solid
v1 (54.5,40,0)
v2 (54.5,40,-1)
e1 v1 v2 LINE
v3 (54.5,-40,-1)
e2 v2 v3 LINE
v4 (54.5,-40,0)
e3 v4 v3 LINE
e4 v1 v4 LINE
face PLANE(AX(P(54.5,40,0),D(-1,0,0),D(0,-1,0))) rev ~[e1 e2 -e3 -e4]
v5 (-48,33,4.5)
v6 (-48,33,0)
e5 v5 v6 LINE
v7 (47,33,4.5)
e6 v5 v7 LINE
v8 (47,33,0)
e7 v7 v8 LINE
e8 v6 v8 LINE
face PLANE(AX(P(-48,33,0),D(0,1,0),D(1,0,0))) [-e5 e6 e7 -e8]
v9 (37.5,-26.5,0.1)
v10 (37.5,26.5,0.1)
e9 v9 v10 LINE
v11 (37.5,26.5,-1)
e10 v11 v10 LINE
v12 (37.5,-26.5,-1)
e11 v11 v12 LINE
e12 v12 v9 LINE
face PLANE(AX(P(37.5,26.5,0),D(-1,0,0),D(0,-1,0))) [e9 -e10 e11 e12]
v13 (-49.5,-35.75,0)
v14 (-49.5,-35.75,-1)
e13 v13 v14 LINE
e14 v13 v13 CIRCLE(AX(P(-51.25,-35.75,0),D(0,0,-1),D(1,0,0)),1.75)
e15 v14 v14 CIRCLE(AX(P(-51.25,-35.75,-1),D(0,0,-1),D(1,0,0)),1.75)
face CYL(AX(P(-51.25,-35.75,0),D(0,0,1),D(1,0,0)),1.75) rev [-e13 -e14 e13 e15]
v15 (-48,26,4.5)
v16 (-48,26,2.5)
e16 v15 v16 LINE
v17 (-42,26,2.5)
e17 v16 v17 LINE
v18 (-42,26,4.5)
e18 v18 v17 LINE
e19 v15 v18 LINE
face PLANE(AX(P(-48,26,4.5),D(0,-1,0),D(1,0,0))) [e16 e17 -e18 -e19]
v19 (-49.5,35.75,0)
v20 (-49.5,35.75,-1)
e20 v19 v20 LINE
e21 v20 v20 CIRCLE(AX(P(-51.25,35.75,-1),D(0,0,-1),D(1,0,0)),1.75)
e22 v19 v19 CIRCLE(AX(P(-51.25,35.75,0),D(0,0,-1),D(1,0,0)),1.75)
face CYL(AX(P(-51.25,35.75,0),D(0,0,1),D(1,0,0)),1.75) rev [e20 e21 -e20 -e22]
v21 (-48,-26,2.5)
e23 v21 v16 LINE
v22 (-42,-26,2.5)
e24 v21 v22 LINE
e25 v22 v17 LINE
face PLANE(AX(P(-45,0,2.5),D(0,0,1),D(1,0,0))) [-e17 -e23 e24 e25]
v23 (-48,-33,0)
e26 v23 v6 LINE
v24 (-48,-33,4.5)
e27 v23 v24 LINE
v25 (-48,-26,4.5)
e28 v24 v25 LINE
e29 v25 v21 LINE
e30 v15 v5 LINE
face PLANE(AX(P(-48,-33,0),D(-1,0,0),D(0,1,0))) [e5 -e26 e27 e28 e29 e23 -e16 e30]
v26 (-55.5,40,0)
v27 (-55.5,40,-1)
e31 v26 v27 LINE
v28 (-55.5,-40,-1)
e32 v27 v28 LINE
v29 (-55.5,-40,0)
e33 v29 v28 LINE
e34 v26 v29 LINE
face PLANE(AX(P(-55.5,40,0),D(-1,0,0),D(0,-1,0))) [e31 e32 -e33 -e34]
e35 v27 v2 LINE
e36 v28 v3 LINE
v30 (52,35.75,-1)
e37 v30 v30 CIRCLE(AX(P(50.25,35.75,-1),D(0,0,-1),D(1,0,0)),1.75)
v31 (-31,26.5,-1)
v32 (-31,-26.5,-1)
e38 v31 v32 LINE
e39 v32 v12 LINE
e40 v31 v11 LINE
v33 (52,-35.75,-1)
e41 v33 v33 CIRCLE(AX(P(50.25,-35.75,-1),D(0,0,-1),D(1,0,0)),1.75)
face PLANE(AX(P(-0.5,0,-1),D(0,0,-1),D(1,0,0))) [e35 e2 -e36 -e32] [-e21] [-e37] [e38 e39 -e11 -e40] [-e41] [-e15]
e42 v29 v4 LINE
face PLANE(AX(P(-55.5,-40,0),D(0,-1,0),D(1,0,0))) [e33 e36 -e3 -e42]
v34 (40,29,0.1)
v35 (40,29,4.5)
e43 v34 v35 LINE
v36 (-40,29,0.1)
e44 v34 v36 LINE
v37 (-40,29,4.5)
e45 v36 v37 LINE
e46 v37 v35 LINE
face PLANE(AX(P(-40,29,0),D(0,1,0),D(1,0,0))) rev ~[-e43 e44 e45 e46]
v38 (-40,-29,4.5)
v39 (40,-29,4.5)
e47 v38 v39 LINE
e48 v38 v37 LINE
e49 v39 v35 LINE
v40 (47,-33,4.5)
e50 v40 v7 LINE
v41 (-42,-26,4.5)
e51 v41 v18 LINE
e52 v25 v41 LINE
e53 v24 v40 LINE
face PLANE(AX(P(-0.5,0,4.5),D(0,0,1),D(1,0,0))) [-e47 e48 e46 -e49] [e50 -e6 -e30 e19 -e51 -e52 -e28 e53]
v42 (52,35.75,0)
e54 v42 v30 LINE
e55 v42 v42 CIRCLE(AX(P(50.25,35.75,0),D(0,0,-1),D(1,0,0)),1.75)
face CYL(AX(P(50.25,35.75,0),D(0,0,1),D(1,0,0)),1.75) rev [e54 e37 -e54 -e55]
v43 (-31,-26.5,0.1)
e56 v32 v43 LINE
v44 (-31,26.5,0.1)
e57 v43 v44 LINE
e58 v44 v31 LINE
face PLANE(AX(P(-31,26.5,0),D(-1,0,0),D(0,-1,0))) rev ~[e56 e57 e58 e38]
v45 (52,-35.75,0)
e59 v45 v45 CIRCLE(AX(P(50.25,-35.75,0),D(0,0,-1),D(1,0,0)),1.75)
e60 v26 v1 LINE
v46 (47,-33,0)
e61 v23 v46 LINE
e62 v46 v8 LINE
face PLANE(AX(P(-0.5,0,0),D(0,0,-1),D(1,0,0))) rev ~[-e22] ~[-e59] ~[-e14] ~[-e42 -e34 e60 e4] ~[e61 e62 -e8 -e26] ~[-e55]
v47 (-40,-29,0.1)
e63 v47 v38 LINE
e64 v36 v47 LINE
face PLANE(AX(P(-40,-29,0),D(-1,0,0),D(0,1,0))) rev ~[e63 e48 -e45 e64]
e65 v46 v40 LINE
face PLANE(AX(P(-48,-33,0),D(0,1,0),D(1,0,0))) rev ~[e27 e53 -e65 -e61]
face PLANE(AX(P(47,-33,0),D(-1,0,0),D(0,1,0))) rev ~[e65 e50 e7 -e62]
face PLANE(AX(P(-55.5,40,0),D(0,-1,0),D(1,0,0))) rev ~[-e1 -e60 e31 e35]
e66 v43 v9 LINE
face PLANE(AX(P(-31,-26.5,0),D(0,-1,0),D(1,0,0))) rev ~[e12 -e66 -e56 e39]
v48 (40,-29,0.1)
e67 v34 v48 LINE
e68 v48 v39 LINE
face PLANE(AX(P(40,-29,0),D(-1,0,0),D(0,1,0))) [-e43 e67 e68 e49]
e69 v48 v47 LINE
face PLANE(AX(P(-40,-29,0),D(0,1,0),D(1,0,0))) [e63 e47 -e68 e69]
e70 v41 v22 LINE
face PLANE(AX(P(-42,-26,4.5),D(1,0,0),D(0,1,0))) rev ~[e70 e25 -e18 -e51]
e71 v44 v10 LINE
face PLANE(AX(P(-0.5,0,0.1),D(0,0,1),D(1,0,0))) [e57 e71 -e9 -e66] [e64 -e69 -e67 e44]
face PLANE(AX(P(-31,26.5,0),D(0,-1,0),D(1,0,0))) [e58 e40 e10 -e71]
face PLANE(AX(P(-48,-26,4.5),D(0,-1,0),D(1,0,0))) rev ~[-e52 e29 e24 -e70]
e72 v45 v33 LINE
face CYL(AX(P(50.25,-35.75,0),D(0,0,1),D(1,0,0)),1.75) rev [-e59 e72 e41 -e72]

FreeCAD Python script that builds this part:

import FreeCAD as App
import Part
import Sketcher
from FreeCAD import Vector
Q = App.Units.Quantity


def add_polygon(sketch, points):
    """Adds a closed chain of lines whose ends are joined by coincident constraints."""
    first, n = sketch.GeometryCount, len(points)
    for a, b in zip(points, points[1:] + points[:1]):
        sketch.addGeometry(Part.LineSegment(App.Vector(*a, 0), App.Vector(*b, 0)), False)
    for i in range(n):
        sketch.addConstraint(Sketcher.Constraint("Coincident", first + i, 2, first + (i + 1) % n, 1))

doc = App.newDocument("Part")
body = doc.addObject("PartDesign::Body", "Body")

sketch1 = body.newObject("Sketcher::SketchObject", "Sketch")
sketch1.AttachmentSupport = (doc.getObject("XY_Plane"), [""])
sketch1.MapMode = "FlatFace"
add_polygon(sketch1, [(-48, 33), (-48, -33), (47, -33), (47, 33)])
add_polygon(sketch1, [(38, -26), (-31, -26), (-31, 26), (38, 26)])
sketch1.addConstraint(Sketcher.Constraint("Vertical", 0))
sketch1.addConstraint(Sketcher.Constraint("Horizontal", 1))
sketch1.addConstraint(Sketcher.Constraint("Vertical", 2))
sketch1.addConstraint(Sketcher.Constraint("Horizontal", 3))
sketch1.addConstraint(Sketcher.Constraint("Horizontal", 4))
sketch1.addConstraint(Sketcher.Constraint("Vertical", 5))
sketch1.addConstraint(Sketcher.Constraint("Horizontal", 6))
sketch1.addConstraint(Sketcher.Constraint("Vertical", 7))
sketch1.addConstraint(Sketcher.Constraint("DistanceX", 1, 1, 1, 2, Q("95 mm")))
sketch1.addConstraint(Sketcher.Constraint("DistanceY", 0, 2, 0, 1, Q("66 mm")))
sketch1.addConstraint(Sketcher.Constraint("DistanceY", 5, 1, 5, 2, Q("53 mm")))
sketch1.addConstraint(Sketcher.Constraint("DistanceX", 4, 2, 4, 1, Q("68.5 mm")))
sketch1.addConstraint(Sketcher.Constraint("DistanceX", 0, 2, -1, 1, Q("48 mm")))
sketch1.addConstraint(Sketcher.Constraint("DistanceY", 0, 2, -1, 1, Q("33 mm")))
sketch1.addConstraint(Sketcher.Constraint("DistanceX", 4, 2, -1, 1, Q("31 mm")))
sketch1.addConstraint(Sketcher.Constraint("DistanceY", 4, 2, -1, 1, Q("26.5 mm")))
pad1 = body.newObject("PartDesign::Pad", "Pad")
pad1.Profile = sketch1
pad1.Length = 0.1

sketch2 = body.newObject("Sketcher::SketchObject", "Sketch001")
sketch2.AttachmentSupport = (doc.getObject("XY_Plane"), [""])
sketch2.MapMode = "FlatFace"
add_polygon(sketch2, [(-48, 33), (-48, -33), (47, -33), (47, 33)])
add_polygon(sketch2, [(40, -29), (-40, -29), (-40, 29), (40, 29)])
sketch2.addConstraint(Sketcher.Constraint("Vertical", 0))
sketch2.addConstraint(Sketcher.Constraint("Horizontal", 1))
sketch2.addConstraint(Sketcher.Constraint("Vertical", 2))
sketch2.addConstraint(Sketcher.Constraint("Horizontal", 3))
sketch2.addConstraint(Sketcher.Constraint("Horizontal", 4))
sketch2.addConstraint(Sketcher.Constraint("Vertical", 5))
sketch2.addConstraint(Sketcher.Constraint("Horizontal", 6))
sketch2.addConstraint(Sketcher.Constraint("Vertical", 7))
sketch2.addConstraint(Sketcher.Constraint("Symmetric", 4, 2, 6, 2, -1, 1))
sketch2.addConstraint(Sketcher.Constraint("DistanceX", 1, 1, 1, 2, Q("95 mm")))
sketch2.addConstraint(Sketcher.Constraint("DistanceX", 4, 2, 4, 1, Q("80 mm")))
sketch2.addConstraint(Sketcher.Constraint("DistanceY", 0, 2, 0, 1, Q("66 mm")))
sketch2.addConstraint(Sketcher.Constraint("DistanceY", 5, 1, 5, 2, Q("58 mm")))
sketch2.addConstraint(Sketcher.Constraint("DistanceX", 0, 2, -1, 1, Q("48 mm")))
sketch2.addConstraint(Sketcher.Constraint("DistanceY", 0, 2, -1, 1, Q("33 mm")))
pad2 = body.newObject("PartDesign::Pad", "Pad001")
pad2.Profile = sketch2
pad2.Length = 4.5

sketch3 = body.newObject("Sketcher::SketchObject", "Sketch002")
sketch3.AttachmentSupport = (doc.getObject("XY_Plane"), [""])
sketch3.MapMode = "FlatFace"
sketch3.AttachmentOffset = App.Placement(Vector(0, 0, 4.5), App.Rotation())
add_polygon(sketch3, [(-48, 26), (-48, -26), (-42, -26), (-42, 26)])
sketch3.addConstraint(Sketcher.Constraint("Vertical", 0))
sketch3.addConstraint(Sketcher.Constraint("Horizontal", 1))
sketch3.addConstraint(Sketcher.Constraint("Vertical", 2))
sketch3.addConstraint(Sketcher.Constraint("Horizontal", 3))
sketch3.addConstraint(Sketcher.Constraint("DistanceX", 1, 1, 1, 2, Q("6 mm")))
sketch3.addConstraint(Sketcher.Constraint("DistanceY", 0, 2, 0, 1, Q("52 mm")))
sketch3.addConstraint(Sketcher.Constraint("DistanceX", 0, 2, -1, 1, Q("48 mm")))
sketch3.addConstraint(Sketcher.Constraint("DistanceY", 0, 2, -1, 1, Q("26 mm")))
pocket1 = body.newObject("PartDesign::Pocket", "Pocket")
pocket1.Profile = sketch3
pocket1.Length = 2

sketch4 = body.newObject("Sketcher::SketchObject", "Sketch003")
sketch4.AttachmentSupport = (doc.getObject("XY_Plane"), [""])
sketch4.MapMode = "FlatFace"
add_polygon(sketch4, [(-55.5, -40), (-55.5, 40), (54.5, 40), (54.5, -40)])
sketch4.addGeometry(Part.Circle(Vector(-51.2, 35.8, 0), Vector(0, 0, 1), 1.8), False)
sketch4.addGeometry(Part.Circle(Vector(50.2, 35.8, 0), Vector(0, 0, 1), 1.8), False)
sketch4.addGeometry(Part.Circle(Vector(-51.2, -35.8, 0), Vector(0, 0, 1), 1.8), False)
add_polygon(sketch4, [(37.5, 26.5), (-31, 26.5), (-31, -26.5), (37.5, -26.5)])
sketch4.addGeometry(Part.Circle(Vector(50.2, -35.8, 0), Vector(0, 0, 1), 1.8), False)
sketch4.addConstraint(Sketcher.Constraint("Vertical", 0))
sketch4.addConstraint(Sketcher.Constraint("Horizontal", 1))
sketch4.addConstraint(Sketcher.Constraint("Vertical", 2))
sketch4.addConstraint(Sketcher.Constraint("Horizontal", 3))
sketch4.addConstraint(Sketcher.Constraint("Horizontal", 7))
sketch4.addConstraint(Sketcher.Constraint("Vertical", 8))
sketch4.addConstraint(Sketcher.Constraint("Horizontal", 9))
sketch4.addConstraint(Sketcher.Constraint("Vertical", 10))
sketch4.addConstraint(Sketcher.Constraint("Equal", 4, 5))
sketch4.addConstraint(Sketcher.Constraint("Equal", 5, 6))
sketch4.addConstraint(Sketcher.Constraint("Equal", 6, 11))
sketch4.addConstraint(Sketcher.Constraint("Symmetric", 4, 3, 6, 3, -1))
sketch4.addConstraint(Sketcher.Constraint("Symmetric", 5, 3, 11, 3, -1))
sketch4.addConstraint(Sketcher.Constraint("Horizontal", 4, 3, 5, 3))
sketch4.addConstraint(Sketcher.Constraint("Diameter", 4, Q("3.5 mm")))
sketch4.addConstraint(Sketcher.Constraint("DistanceX", 1, 1, 1, 2, Q("110 mm")))
sketch4.addConstraint(Sketcher.Constraint("DistanceY", 0, 1, 0, 2, Q("80 mm")))
sketch4.addConstraint(Sketcher.Constraint("DistanceY", 8, 2, 8, 1, Q("53 mm")))
sketch4.addConstraint(Sketcher.Constraint("DistanceX", 7, 2, 7, 1, Q("68.5 mm")))
sketch4.addConstraint(Sketcher.Constraint("DistanceY", -1, 1, 0, 2, Q("40 mm")))
sketch4.addConstraint(Sketcher.Constraint("DistanceX", 7, 2, -1, 1, Q("31 mm")))
sketch4.addConstraint(Sketcher.Constraint("DistanceX", 9, 2, 2, 2, Q("17 mm")))
sketch4.addConstraint(Sketcher.Constraint("DistanceY", -1, 1, 7, 2, Q("26.5 mm")))
sketch4.addConstraint(Sketcher.Constraint("DistanceX", 4, 3, 5, 3, Q("101.5 mm")))
sketch4.addConstraint(Sketcher.Constraint("DistanceY", 6, 3, 4, 3, Q("71.5 mm")))
sketch4.addConstraint(Sketcher.Constraint("DistanceX", 4, 3, -1, 1, Q("51.25 mm")))
pad3 = body.newObject("PartDesign::Pad", "Pad002")
pad3.Profile = sketch4
pad3.Length = 1
pad3.Reversed = True

doc.recompute()
